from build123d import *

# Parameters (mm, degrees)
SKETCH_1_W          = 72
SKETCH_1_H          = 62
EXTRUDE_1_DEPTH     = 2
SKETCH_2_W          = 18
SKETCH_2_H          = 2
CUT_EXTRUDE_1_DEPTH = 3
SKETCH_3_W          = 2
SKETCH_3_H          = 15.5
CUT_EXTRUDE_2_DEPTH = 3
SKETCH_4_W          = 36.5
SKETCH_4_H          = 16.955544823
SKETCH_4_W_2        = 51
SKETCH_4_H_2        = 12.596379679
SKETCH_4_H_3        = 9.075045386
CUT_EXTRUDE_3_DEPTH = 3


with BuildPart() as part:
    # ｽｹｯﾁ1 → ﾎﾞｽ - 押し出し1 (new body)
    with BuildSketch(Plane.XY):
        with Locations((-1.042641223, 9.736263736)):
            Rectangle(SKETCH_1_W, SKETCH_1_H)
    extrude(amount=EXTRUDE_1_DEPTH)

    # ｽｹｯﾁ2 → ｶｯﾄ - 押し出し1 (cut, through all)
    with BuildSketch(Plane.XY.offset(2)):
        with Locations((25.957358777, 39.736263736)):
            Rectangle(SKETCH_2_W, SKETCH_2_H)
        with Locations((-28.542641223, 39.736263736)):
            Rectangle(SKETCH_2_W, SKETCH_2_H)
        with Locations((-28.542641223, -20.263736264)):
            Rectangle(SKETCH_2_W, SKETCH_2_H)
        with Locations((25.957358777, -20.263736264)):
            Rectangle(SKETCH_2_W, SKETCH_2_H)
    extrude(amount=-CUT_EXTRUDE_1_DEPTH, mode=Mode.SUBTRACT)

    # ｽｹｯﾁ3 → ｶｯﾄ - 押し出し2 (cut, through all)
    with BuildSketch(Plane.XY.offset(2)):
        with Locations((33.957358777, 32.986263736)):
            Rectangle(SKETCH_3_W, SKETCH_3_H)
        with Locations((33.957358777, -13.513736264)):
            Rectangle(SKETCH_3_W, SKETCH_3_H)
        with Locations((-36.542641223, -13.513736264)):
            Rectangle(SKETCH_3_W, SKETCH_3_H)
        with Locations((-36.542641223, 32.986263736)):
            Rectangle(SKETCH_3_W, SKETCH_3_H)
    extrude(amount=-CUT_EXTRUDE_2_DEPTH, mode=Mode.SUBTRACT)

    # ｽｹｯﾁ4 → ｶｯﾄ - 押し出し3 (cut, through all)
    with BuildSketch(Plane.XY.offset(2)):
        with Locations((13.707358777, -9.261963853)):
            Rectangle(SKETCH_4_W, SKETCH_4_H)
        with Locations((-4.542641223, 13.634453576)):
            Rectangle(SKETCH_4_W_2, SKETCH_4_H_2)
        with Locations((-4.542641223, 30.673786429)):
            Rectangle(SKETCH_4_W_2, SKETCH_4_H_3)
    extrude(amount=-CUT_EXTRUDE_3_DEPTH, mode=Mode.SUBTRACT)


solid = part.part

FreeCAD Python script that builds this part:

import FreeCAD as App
import Part
import Sketcher

doc = App.newDocument("Part")
body = doc.addObject("PartDesign::Body", "Body")

# Sketch on XY plane
sketch1 = body.newObject("Sketcher::SketchObject", "Sketch")
sketch1.AttachmentSupport = (doc.getObject("XY_Plane"), [""])
sketch1.MapMode = "FlatFace"
sketch1.addGeometry([
    Part.LineSegment(App.Vector(-37.042641, 40.736264, 0), App.Vector(-37.042641, -21.263736, 0)),
    Part.LineSegment(App.Vector(-37.042641, -21.263736, 0), App.Vector(34.957359, -21.263736, 0)),
    Part.LineSegment(App.Vector(34.957359, -21.263736, 0), App.Vector(34.957359, 40.736264, 0)),
    Part.LineSegment(App.Vector(34.957359, 40.736264, 0), App.Vector(-37.042641, 40.736264, 0)),
], False)
sketch1.addConstraint([
    Sketcher.Constraint("Coincident", 0, 2, 1, 1),
    Sketcher.Constraint("Coincident", 1, 2, 2, 1),
    Sketcher.Constraint("Coincident", 2, 2, 3, 1),
    Sketcher.Constraint("Coincident", 3, 2, 0, 1),
    Sketcher.Constraint("Vertical", 0),
    Sketcher.Constraint("Horizontal", 1),
    Sketcher.Constraint("Vertical", 2),
    Sketcher.Constraint("Horizontal", 3),
    Sketcher.Constraint("DistanceX", 1, 1, 1, 2, 72.0),
    Sketcher.Constraint("DistanceY", 0, 2, 0, 1, 62.0),
    Sketcher.Constraint("DistanceX", 0, 2, -1, 1, 37.042641),
    Sketcher.Constraint("DistanceY", 0, 2, -1, 1, 21.263736),
])
pad1 = body.newObject("PartDesign::Pad", "Pad")
pad1.Profile = sketch1
pad1.Length = 2

# Sketch on XY plane
sketch2 = body.newObject("Sketcher::SketchObject", "Sketch001")
sketch2.AttachmentSupport = (doc.getObject("XY_Plane"), [""])
sketch2.MapMode = "FlatFace"
sketch2.AttachmentOffset = App.Placement(App.Vector(0, 0, 2), App.Rotation())
sketch2.addGeometry([
    Part.LineSegment(App.Vector(16.957359, 40.736264, 0), App.Vector(16.957359, 38.736264, 0)),  # 0
    Part.LineSegment(App.Vector(16.957359, 38.736264, 0), App.Vector(34.957359, 38.736264, 0)),  # 1
    Part.LineSegment(App.Vector(34.957359, 38.736264, 0), App.Vector(34.957359, 40.736264, 0)),  # 2
    Part.LineSegment(App.Vector(34.957359, 40.736264, 0), App.Vector(16.957359, 40.736264, 0)),  # 3
    Part.LineSegment(App.Vector(-37.542641, 40.736264, 0), App.Vector(-37.542641, 38.736264, 0)),  # 4
    Part.LineSegment(App.Vector(-37.542641, 38.736264, 0), App.Vector(-19.542641, 38.736264, 0)),  # 5
    Part.LineSegment(App.Vector(-19.542641, 38.736264, 0), App.Vector(-19.542641, 40.736264, 0)),  # 6
    Part.LineSegment(App.Vector(-19.542641, 40.736264, 0), App.Vector(-37.542641, 40.736264, 0)),  # 7
    Part.LineSegment(App.Vector(-37.542641, -19.263736, 0), App.Vector(-37.542641, -21.263736, 0)),  # 8
    Part.LineSegment(App.Vector(-37.542641, -21.263736, 0), App.Vector(-19.542641, -21.263736, 0)),  # 9
    Part.LineSegment(App.Vector(-19.542641, -21.263736, 0), App.Vector(-19.542641, -19.263736, 0)),  # 10
    Part.LineSegment(App.Vector(-19.542641, -19.263736, 0), App.Vector(-37.542641, -19.263736, 0)),  # 11
    Part.LineSegment(App.Vector(16.957359, -19.263736, 0), App.Vector(16.957359, -21.263736, 0)),  # 12
    Part.LineSegment(App.Vector(16.957359, -21.263736, 0), App.Vector(34.957359, -21.263736, 0)),  # 13
    Part.LineSegment(App.Vector(34.957359, -21.263736, 0), App.Vector(34.957359, -19.263736, 0)),  # 14
    Part.LineSegment(App.Vector(34.957359, -19.263736, 0), App.Vector(16.957359, -19.263736, 0)),  # 15
], False)
sketch2.addConstraint([
    Sketcher.Constraint("Coincident", 0, 2, 1, 1),
    Sketcher.Constraint("Coincident", 1, 2, 2, 1),
    Sketcher.Constraint("Coincident", 2, 2, 3, 1),
    Sketcher.Constraint("Coincident", 3, 2, 0, 1),
    Sketcher.Constraint("Coincident", 4, 2, 5, 1),
    Sketcher.Constraint("Coincident", 5, 2, 6, 1),
    Sketcher.Constraint("Coincident", 6, 2, 7, 1),
    Sketcher.Constraint("Coincident", 7, 2, 4, 1),
    Sketcher.Constraint("Coincident", 8, 2, 9, 1),
    Sketcher.Constraint("Coincident", 9, 2, 10, 1),
    Sketcher.Constraint("Coincident", 10, 2, 11, 1),
    Sketcher.Constraint("Coincident", 11, 2, 8, 1),
    Sketcher.Constraint("Coincident", 12, 2, 13, 1),
    Sketcher.Constraint("Coincident", 13, 2, 14, 1),
    Sketcher.Constraint("Coincident", 14, 2, 15, 1),
    Sketcher.Constraint("Coincident", 15, 2, 12, 1),
    Sketcher.Constraint("Vertical", 0),
    Sketcher.Constraint("Horizontal", 1),
    Sketcher.Constraint("Vertical", 2),
    Sketcher.Constraint("Horizontal", 3),
    Sketcher.Constraint("Vertical", 4),
    Sketcher.Constraint("Horizontal", 5),
    Sketcher.Constraint("Vertical", 6),
    Sketcher.Constraint("Horizontal", 7),
    Sketcher.Constraint("Vertical", 8),
    Sketcher.Constraint("Horizontal", 9),
    Sketcher.Constraint("Vertical", 10),
    Sketcher.Constraint("Horizontal", 11),
    Sketcher.Constraint("Vertical", 12),
    Sketcher.Constraint("Horizontal", 13),
    Sketcher.Constraint("Vertical", 14),
    Sketcher.Constraint("Horizontal", 15),
    Sketcher.Constraint("Horizontal", 1, 2, 4, 2),
    Sketcher.Constraint("Horizontal", 3, 2, 6, 2),
    Sketcher.Constraint("Horizontal", 9, 2, 12, 2),
    Sketcher.Constraint("Horizontal", 11, 2, 14, 2),
    Sketcher.Constraint("Vertical", 7, 2, 8, 2),
    Sketcher.Constraint("Vertical", 6, 2, 9, 2),
    Sketcher.Constraint("Vertical", 3, 2, 12, 2),
    Sketcher.Constraint("Vertical", 2, 2, 13, 2),
    Sketcher.Constraint("Equal", 3, 5),
    Sketcher.Constraint("Equal", 6, 8),
    Sketcher.Constraint("DistanceX", 1, 1, 1, 2, 18.0),
    Sketcher.Constraint("DistanceY", 0, 2, 0, 1, 2.0),
    Sketcher.Constraint("DistanceY", 8, 2, 4, 2, 60.0),
    Sketcher.Constraint("DistanceX", 4, 2, 0, 2, 54.5),
    Sketcher.Constraint("DistanceX", -1, 1, 0, 2, 16.957359),
    Sketcher.Constraint("DistanceY", -1, 1, 0, 2, 38.736264),
])
pocket1 = body.newObject("PartDesign::Pocket", "Pocket")
pocket1.Profile = sketch2
pocket1.Type = "ThroughAll"

# Sketch on XY plane
sketch3 = body.newObject("Sketcher::SketchObject", "Sketch002")
sketch3.AttachmentSupport = (doc.getObject("XY_Plane"), [""])
sketch3.MapMode = "FlatFace"
sketch3.AttachmentOffset = App.Placement(App.Vector(0, 0, 2), App.Rotation())
sketch3.addGeometry([
    Part.LineSegment(App.Vector(32.957359, 40.736264, 0), App.Vector(32.957359, 25.236264, 0)),  # 0
    Part.LineSegment(App.Vector(32.957359, 25.236264, 0), App.Vector(34.957359, 25.236264, 0)),  # 1
    Part.LineSegment(App.Vector(34.957359, 25.236264, 0), App.Vector(34.957359, 40.736264, 0)),  # 2
    Part.LineSegment(App.Vector(34.957359, 40.736264, 0), App.Vector(32.957359, 40.736264, 0)),  # 3
    Part.LineSegment(App.Vector(32.957359, -5.763736, 0), App.Vector(32.957359, -21.263736, 0)),  # 4
    Part.LineSegment(App.Vector(32.957359, -21.263736, 0), App.Vector(34.957359, -21.263736, 0)),  # 5
    Part.LineSegment(App.Vector(34.957359, -21.263736, 0), App.Vector(34.957359, -5.763736, 0)),  # 6
    Part.LineSegment(App.Vector(34.957359, -5.763736, 0), App.Vector(32.957359, -5.763736, 0)),  # 7
    Part.LineSegment(App.Vector(-37.542641, -5.763736, 0), App.Vector(-37.542641, -21.263736, 0)),  # 8
    Part.LineSegment(App.Vector(-37.542641, -21.263736, 0), App.Vector(-35.542641, -21.263736, 0)),  # 9
    Part.LineSegment(App.Vector(-35.542641, -21.263736, 0), App.Vector(-35.542641, -5.763736, 0)),  # 10
    Part.LineSegment(App.Vector(-35.542641, -5.763736, 0), App.Vector(-37.542641, -5.763736, 0)),  # 11
    Part.LineSegment(App.Vector(-37.542641, 40.736264, 0), App.Vector(-37.542641, 25.236264, 0)),  # 12
    Part.LineSegment(App.Vector(-37.542641, 25.236264, 0), App.Vector(-35.542641, 25.236264, 0)),  # 13
    Part.LineSegment(App.Vector(-35.542641, 25.236264, 0), App.Vector(-35.542641, 40.736264, 0)),  # 14
    Part.LineSegment(App.Vector(-35.542641, 40.736264, 0), App.Vector(-37.542641, 40.736264, 0)),  # 15
], False)
sketch3.addConstraint([
    Sketcher.Constraint("Coincident", 0, 2, 1, 1),
    Sketcher.Constraint("Coincident", 1, 2, 2, 1),
    Sketcher.Constraint("Coincident", 2, 2, 3, 1),
    Sketcher.Constraint("Coincident", 3, 2, 0, 1),
    Sketcher.Constraint("Coincident", 4, 2, 5, 1),
    Sketcher.Constraint("Coincident", 5, 2, 6, 1),
    Sketcher.Constraint("Coincident", 6, 2, 7, 1),
    Sketcher.Constraint("Coincident", 7, 2, 4, 1),
    Sketcher.Constraint("Coincident", 8, 2, 9, 1),
    Sketcher.Constraint("Coincident", 9, 2, 10, 1),
    Sketcher.Constraint("Coincident", 10, 2, 11, 1),
    Sketcher.Constraint("Coincident", 11, 2, 8, 1),
    Sketcher.Constraint("Coincident", 12, 2, 13, 1),
    Sketcher.Constraint("Coincident", 13, 2, 14, 1),
    Sketcher.Constraint("Coincident", 14, 2, 15, 1),
    Sketcher.Constraint("Coincident", 15, 2, 12, 1),
    Sketcher.Constraint("Vertical", 0),
    Sketcher.Constraint("Horizontal", 1),
    Sketcher.Constraint("Vertical", 2),
    Sketcher.Constraint("Horizontal", 3),
    Sketcher.Constraint("Vertical", 4),
    Sketcher.Constraint("Horizontal", 5),
    Sketcher.Constraint("Vertical", 6),
    Sketcher.Constraint("Horizontal", 7),
    Sketcher.Constraint("Vertical", 8),
    Sketcher.Constraint("Horizontal", 9),
    Sketcher.Constraint("Vertical", 10),
    Sketcher.Constraint("Horizontal", 11),
    Sketcher.Constraint("Vertical", 12),
    Sketcher.Constraint("Horizontal", 13),
    Sketcher.Constraint("Vertical", 14),
    Sketcher.Constraint("Horizontal", 15),
    Sketcher.Constraint("Horizontal", 5, 2, 8, 2),
    Sketcher.Constraint("Horizontal", 7, 2, 10, 2),
    Sketcher.Constraint("Horizontal", 1, 2, 12, 2),
    Sketcher.Constraint("Horizontal", 3, 2, 14, 2),
    Sketcher.Constraint("Vertical", 3, 2, 4, 2),
    Sketcher.Constraint("Vertical", 2, 2, 5, 2),
    Sketcher.Constraint("Vertical", 11, 2, 12, 2),
    Sketcher.Constraint("Vertical", 10, 2, 13, 2),
    Sketcher.Constraint("Equal", 7, 9),
    Sketcher.Constraint("Equal", 2, 4),
    Sketcher.Constraint("DistanceX", 1, 1, 1, 2, 2.0),
    Sketcher.Constraint("DistanceY", 0, 2, 0, 1, 15.5),
    Sketcher.Constraint("DistanceY", 4, 2, 3, 2, 62.0),
    Sketcher.Constraint("DistanceX", 8, 2, 4, 2, 70.5),
    Sketcher.Constraint("DistanceX", -1, 1, 0, 2, 32.957359),
    Sketcher.Constraint("DistanceY", -1, 1, 0, 2, 25.236264),
])
pocket2 = body.newObject("PartDesign::Pocket", "Pocket001")
pocket2.Profile = sketch3
pocket2.Type = "ThroughAll"

# Sketch on XY plane
sketch4 = body.newObject("Sketcher::SketchObject", "Sketch003")
sketch4.AttachmentSupport = (doc.getObject("XY_Plane"), [""])
sketch4.MapMode = "FlatFace"
sketch4.AttachmentOffset = App.Placement(App.Vector(0, 0, 2), App.Rotation())
sketch4.addGeometry([
    Part.LineSegment(App.Vector(-4.542641, -0.784191, 0), App.Vector(-4.542641, -17.739736, 0)),  # 0
    Part.LineSegment(App.Vector(-4.542641, -17.739736, 0), App.Vector(31.957359, -17.739736, 0)),  # 1
    Part.LineSegment(App.Vector(31.957359, -17.739736, 0), App.Vector(31.957359, -0.784191, 0)),  # 2
    Part.LineSegment(App.Vector(31.957359, -0.784191, 0), App.Vector(-4.542641, -0.784191, 0)),  # 3
    Part.LineSegment(App.Vector(-30.042641, 19.932643, 0), App.Vector(-30.042641, 7.336264, 0)),  # 4
    Part.LineSegment(App.Vector(-30.042641, 7.336264, 0), App.Vector(20.957359, 7.336264, 0)),  # 5
    Part.LineSegment(App.Vector(20.957359, 7.336264, 0), App.Vector(20.957359, 19.932643, 0)),  # 6
    Part.LineSegment(App.Vector(20.957359, 19.932643, 0), App.Vector(-30.042641, 19.932643, 0)),  # 7
    Part.LineSegment(App.Vector(-30.042641, 35.211309, 0), App.Vector(-30.042641, 26.136264, 0)),  # 8
    Part.LineSegment(App.Vector(-30.042641, 26.136264, 0), App.Vector(20.957359, 26.136264, 0)),  # 9
    Part.LineSegment(App.Vector(20.957359, 26.136264, 0), App.Vector(20.957359, 35.211309, 0)),  # 10
    Part.LineSegment(App.Vector(20.957359, 35.211309, 0), App.Vector(-30.042641, 35.211309, 0)),  # 11
], False)
sketch4.addConstraint([
    Sketcher.Constraint("Coincident", 0, 2, 1, 1),
    Sketcher.Constraint("Coincident", 1, 2, 2, 1),
    Sketcher.Constraint("Coincident", 2, 2, 3, 1),
    Sketcher.Constraint("Coincident", 3, 2, 0, 1),
    Sketcher.Constraint("Coincident", 4, 2, 5, 1),
    Sketcher.Constraint("Coincident", 5, 2, 6, 1),
    Sketcher.Constraint("Coincident", 6, 2, 7, 1),
    Sketcher.Constraint("Coincident", 7, 2, 4, 1),
    Sketcher.Constraint("Coincident", 8, 2, 9, 1),
    Sketcher.Constraint("Coincident", 9, 2, 10, 1),
    Sketcher.Constraint("Coincident", 10, 2, 11, 1),
    Sketcher.Constraint("Coincident", 11, 2, 8, 1),
    Sketcher.Constraint("Vertical", 0),
    Sketcher.Constraint("Horizontal", 1),
    Sketcher.Constraint("Vertical", 2),
    Sketcher.Constraint("Horizontal", 3),
    Sketcher.Constraint("Vertical", 4),
    Sketcher.Constraint("Horizontal", 5),
    Sketcher.Constraint("Vertical", 6),
    Sketcher.Constraint("Horizontal", 7),
    Sketcher.Constraint("Vertical", 8),
    Sketcher.Constraint("Horizontal", 9),
    Sketcher.Constraint("Vertical", 10),
    Sketcher.Constraint("Horizontal", 11),
    Sketcher.Constraint("Vertical", 7, 2, 8, 2),
    Sketcher.Constraint("Vertical", 6, 2, 9, 2),
    Sketcher.Constraint("DistanceX", 5, 1, 5, 2, 51.0),
    Sketcher.Constraint("DistanceX", 1, 1, 1, 2, 36.5),
    Sketcher.Constraint("DistanceX", 4, 2, 2, 2, 62.0),
    Sketcher.Constraint("DistanceY", 4, 2, 8, 2, 18.8),
    Sketcher.Constraint("DistanceY", 0, 2, 4, 2, 25.076),
    Sketcher.Constraint("DistanceY", 4, 2, 4, 1, 12.59638),
    Sketcher.Constraint("DistanceY", 2, 2, 10, 2, 35.995501),
    Sketcher.Constraint("DistanceY", 0, 2, 0, 1, 16.955545),
    Sketcher.Constraint("DistanceX", 0, 2, -1, 1, 4.542641),
    Sketcher.Constraint("DistanceY", 2, 2, -1, 1, 0.784191),
])
pocket3 = body.newObject("PartDesign::Pocket", "Pocket002")
pocket3.Profile = sketch4
pocket3.Type = "ThroughAll"

doc.recompute()
